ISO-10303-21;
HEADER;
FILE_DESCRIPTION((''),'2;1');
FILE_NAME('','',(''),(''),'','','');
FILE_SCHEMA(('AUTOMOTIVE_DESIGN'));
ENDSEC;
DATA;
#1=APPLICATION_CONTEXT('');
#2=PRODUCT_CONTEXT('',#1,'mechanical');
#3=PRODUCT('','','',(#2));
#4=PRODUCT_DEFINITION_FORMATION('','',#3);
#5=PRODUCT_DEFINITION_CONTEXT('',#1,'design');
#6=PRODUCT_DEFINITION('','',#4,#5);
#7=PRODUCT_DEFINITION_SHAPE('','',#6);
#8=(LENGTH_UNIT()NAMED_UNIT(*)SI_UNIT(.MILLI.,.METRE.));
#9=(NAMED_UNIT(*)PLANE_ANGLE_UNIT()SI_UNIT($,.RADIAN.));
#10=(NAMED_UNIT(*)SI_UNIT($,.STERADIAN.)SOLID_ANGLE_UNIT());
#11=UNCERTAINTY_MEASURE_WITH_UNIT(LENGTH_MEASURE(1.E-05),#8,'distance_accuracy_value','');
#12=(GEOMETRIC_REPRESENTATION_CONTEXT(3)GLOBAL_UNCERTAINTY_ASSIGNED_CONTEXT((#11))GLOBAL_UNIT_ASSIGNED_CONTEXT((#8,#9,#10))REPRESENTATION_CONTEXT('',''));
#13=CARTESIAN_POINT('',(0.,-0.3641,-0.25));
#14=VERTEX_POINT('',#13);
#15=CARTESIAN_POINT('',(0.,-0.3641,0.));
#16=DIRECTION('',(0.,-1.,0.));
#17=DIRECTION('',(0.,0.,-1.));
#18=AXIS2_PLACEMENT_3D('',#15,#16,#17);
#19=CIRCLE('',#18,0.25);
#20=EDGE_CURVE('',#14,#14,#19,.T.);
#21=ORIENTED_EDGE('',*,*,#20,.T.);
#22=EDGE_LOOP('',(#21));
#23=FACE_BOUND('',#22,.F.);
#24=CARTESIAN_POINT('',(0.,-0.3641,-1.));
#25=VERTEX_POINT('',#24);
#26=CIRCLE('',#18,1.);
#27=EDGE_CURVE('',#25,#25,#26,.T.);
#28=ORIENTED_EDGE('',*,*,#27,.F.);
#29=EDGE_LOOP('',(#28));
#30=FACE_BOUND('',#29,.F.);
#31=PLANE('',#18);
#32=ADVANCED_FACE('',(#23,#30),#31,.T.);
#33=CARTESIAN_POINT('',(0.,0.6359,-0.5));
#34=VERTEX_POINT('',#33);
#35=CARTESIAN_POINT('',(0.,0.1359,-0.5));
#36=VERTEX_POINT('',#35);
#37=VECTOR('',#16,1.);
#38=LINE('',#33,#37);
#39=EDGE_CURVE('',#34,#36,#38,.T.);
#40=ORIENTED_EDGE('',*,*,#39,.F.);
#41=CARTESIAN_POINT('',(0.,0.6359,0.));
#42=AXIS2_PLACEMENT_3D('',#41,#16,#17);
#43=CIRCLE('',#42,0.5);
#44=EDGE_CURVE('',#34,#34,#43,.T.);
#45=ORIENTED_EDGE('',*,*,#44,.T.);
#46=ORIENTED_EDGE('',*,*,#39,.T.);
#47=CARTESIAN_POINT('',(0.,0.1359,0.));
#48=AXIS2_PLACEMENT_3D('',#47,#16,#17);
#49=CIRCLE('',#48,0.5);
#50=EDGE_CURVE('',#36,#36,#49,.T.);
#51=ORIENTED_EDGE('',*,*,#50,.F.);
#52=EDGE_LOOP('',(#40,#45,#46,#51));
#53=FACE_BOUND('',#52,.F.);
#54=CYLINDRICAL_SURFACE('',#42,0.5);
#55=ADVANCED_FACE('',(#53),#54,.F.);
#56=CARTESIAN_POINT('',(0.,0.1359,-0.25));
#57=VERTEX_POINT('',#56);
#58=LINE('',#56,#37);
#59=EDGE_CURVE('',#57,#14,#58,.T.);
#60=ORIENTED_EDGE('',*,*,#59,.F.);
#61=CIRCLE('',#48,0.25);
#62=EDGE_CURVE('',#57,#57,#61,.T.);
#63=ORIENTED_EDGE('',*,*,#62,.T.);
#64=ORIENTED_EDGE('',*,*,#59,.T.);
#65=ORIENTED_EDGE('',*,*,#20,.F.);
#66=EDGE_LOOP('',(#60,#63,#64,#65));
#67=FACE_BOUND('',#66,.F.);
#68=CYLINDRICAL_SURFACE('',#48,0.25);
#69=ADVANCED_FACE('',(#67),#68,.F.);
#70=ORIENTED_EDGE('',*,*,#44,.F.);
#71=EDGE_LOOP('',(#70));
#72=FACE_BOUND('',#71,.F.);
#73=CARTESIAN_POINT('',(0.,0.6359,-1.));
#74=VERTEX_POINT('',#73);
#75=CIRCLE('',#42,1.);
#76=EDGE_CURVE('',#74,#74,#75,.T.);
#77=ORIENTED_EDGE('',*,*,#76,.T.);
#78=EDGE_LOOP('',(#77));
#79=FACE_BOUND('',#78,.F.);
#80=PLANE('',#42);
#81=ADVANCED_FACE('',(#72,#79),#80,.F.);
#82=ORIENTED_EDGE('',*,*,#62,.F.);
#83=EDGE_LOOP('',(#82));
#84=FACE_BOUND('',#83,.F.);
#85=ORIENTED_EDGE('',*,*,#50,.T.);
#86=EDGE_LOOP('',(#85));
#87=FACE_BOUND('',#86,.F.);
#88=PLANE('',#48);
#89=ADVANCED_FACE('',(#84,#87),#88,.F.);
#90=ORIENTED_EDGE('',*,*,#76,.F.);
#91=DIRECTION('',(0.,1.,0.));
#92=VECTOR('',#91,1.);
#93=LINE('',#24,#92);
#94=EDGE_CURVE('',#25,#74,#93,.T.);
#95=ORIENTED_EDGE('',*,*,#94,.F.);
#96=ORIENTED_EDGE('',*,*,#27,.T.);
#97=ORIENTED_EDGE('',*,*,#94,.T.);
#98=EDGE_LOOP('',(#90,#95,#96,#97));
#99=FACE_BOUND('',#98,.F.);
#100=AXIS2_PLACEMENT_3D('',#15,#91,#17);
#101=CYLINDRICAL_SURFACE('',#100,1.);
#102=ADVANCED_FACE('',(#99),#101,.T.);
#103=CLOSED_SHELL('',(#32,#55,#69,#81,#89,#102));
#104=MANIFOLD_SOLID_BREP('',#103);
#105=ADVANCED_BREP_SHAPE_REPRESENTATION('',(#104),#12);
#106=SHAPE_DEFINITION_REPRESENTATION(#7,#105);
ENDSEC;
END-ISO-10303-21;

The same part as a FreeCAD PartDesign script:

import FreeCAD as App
import Part
import Sketcher

V = App.Vector


def add_polygon(sketch, points):
    """Adds a closed chain of lines whose ends are joined by coincident constraints."""
    first, n = sketch.GeometryCount, len(points)
    for a, b in zip(points, points[1:] + points[:1]):
        sketch.addGeometry(Part.LineSegment(App.Vector(*a, 0), App.Vector(*b, 0)), False)
    for i in range(n):
        sketch.addConstraint(Sketcher.Constraint("Coincident", first + i, 2, first + (i + 1) % n, 1))

doc = App.newDocument("Part")
params = doc.addObject("Spreadsheet::Sheet", "Params")
for row, (alias, value) in enumerate([
    ("sketch1_width", "1 mm"),
    ("sketch1_height", "0.25 mm"),
    ("revolution_angle", "360 deg"),
], start=1):
    params.set(f"A{row}", alias)
    params.set(f"B{row}", "=" + value)
    params.setAlias(f"B{row}", alias)

body = doc.addObject("PartDesign::Body", "Body")

# Sketch on YZ plane
sketch1 = body.newObject("Sketcher::SketchObject", "Sketch")
sketch1.AttachmentSupport = (doc.getObject("YZ_Plane"), [""])
sketch1.MapMode = "FlatFace"
add_polygon(sketch1, [(0.14, -0.5), (0.14, -0.25), (-0.36, -0.25), (-0.36, -1), (0.64, -1), (0.64, -0.5)])  # lines 0-5
sketch1.addConstraint(Sketcher.Constraint("Vertical", 0))
sketch1.addConstraint(Sketcher.Constraint("Horizontal", 1))
sketch1.addConstraint(Sketcher.Constraint("Vertical", 2))
sketch1.addConstraint(Sketcher.Constraint("Horizontal", 3))
sketch1.addConstraint(Sketcher.Constraint("Vertical", 4))
sketch1.addConstraint(Sketcher.Constraint("Horizontal", 5))
sketch1.addConstraint(Sketcher.Constraint("Equal", 1, 5))
sketch1.addConstraint(Sketcher.Constraint("Equal", 5, 4))
sketch1.addConstraint(Sketcher.Constraint("DistanceX", 3, 1, 3, 2, 1.0))
sketch1.addConstraint(Sketcher.Constraint("DistanceY", 2, 2, -1, 1, 1.0))
sketch1.addConstraint(Sketcher.Constraint("DistanceY", 0, 1, 0, 2, 0.25))
sketch1.addConstraint(Sketcher.Constraint("DistanceX", -1, 1, 0, 2, 0.136))
sketch1.setExpression("Constraints[14]", "Params.sketch1_width")
sketch1.setExpression("Constraints[16]", "Params.sketch1_height")
revolution = body.newObject("PartDesign::Revolution", "Revolution")
revolution.Profile = sketch1
revolution.ReferenceAxis = (sketch1, ["H_Axis"])
revolution.setExpression("Angle", "Params.revolution_angle")

doc.recompute()
